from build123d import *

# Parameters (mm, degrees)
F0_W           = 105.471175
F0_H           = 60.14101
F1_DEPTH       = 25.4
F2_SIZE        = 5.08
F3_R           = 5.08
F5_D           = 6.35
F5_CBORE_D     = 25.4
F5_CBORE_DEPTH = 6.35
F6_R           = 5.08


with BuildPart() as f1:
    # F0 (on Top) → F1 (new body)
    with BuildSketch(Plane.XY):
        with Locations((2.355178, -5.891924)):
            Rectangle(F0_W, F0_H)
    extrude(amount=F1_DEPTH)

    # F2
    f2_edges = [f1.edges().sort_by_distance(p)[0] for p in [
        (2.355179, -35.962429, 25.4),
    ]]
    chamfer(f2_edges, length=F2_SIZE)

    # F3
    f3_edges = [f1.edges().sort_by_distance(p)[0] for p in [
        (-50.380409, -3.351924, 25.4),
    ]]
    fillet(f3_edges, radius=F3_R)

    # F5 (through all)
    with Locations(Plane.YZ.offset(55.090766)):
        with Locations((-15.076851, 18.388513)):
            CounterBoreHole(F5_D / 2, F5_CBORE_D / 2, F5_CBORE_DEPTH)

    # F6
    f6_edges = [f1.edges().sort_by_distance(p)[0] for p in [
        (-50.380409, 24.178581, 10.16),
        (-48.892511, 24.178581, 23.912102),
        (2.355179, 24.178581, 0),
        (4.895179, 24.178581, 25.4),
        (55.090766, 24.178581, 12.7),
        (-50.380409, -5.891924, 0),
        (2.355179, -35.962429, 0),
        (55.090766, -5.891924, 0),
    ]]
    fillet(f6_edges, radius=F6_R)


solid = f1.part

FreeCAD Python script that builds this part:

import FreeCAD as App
import Part
import Sketcher
from FreeCAD import Vector
Q = App.Units.Quantity


def edges_at(feature, points):
    """Names of the edges that pass closest to the given points."""
    edges = feature.Shape.Edges
    near = lambda p: min(range(len(edges)), key=lambda i: edges[i].distToShape(Part.Vertex(*p))[0])
    return sorted({f"Edge{near(p) + 1}" for p in points})


def add_polygon(sketch, points):
    """Adds a closed chain of lines whose ends are joined by coincident constraints."""
    first, n = sketch.GeometryCount, len(points)
    for a, b in zip(points, points[1:] + points[:1]):
        sketch.addGeometry(Part.LineSegment(App.Vector(*a, 0), App.Vector(*b, 0)), False)
    for i in range(n):
        sketch.addConstraint(Sketcher.Constraint("Coincident", first + i, 2, first + (i + 1) % n, 1))

doc = App.newDocument("Part")
body = doc.addObject("PartDesign::Body", "Body")

# Sketch on XY plane
sketch1 = doc.addObject("Sketcher::SketchObject", "Sketch")
body.addObject(sketch1)
sketch1.AttachmentSupport = (doc.XY_Plane, [""])
sketch1.MapMode = "FlatFace"
add_polygon(sketch1, [(-50.380409, 24.178581), (-50.380409, -35.962429), (55.090766, -35.962429), (55.090766, 24.178581)])  # lines 0-3
sketch1.addConstraint([
    Sketcher.Constraint("Vertical", 0),
    Sketcher.Constraint("Horizontal", 1),
    Sketcher.Constraint("Vertical", 2),
    Sketcher.Constraint("Horizontal", 3),
    Sketcher.Constraint("DistanceY", 0, 2, 0, 1, 60.14101),
    Sketcher.Constraint("DistanceX", 1, 1, 1, 2, 105.471175),
    Sketcher.Constraint("DistanceX", 0, 2, -1, 1, 50.380409),
    Sketcher.Constraint("DistanceY", 0, 2, -1, 1, 35.962429),
])
pad1 = doc.addObject("PartDesign::Pad", "Pad")
body.addObject(pad1)
pad1.Profile = sketch1
pad1.Length = Q("1 in")
doc.recompute()

chamfer = doc.addObject("PartDesign::Chamfer", "Chamfer")
body.addObject(chamfer)
chamfer.Base = (pad1, edges_at(pad1, [(2.355, -35.962, 25.4)]))
chamfer.Size = Q("0.2 in")
doc.recompute()

fillet = doc.addObject("PartDesign::Fillet", "Fillet")
body.addObject(fillet)
fillet.Base = (chamfer, edges_at(chamfer, [(-50.38, -3.352, 25.4)]))
fillet.Radius = Q("0.2 in")

# Sketch on YZ plane
sketch2 = doc.addObject("Sketcher::SketchObject", "Sketch001")
body.addObject(sketch2)
sketch2.AttachmentSupport = (doc.YZ_Plane, [""])
sketch2.MapMode = "FlatFace"
sketch2.AttachmentOffset = App.Placement(Vector(0, 0, 55.090766), App.Rotation())
sketch2.addGeometry(Part.Circle(Vector(-15.076851, 18.388513, 0), Vector(0, 0, 1), 3.175), False)
sketch2.addConstraint([
    Sketcher.Constraint("Diameter", 0, Q("0.25 in")),
    Sketcher.Constraint("DistanceX", 0, 3, -1, 1, 15.076851),
    Sketcher.Constraint("DistanceY", -1, 1, 0, 3, 18.388513),
])
doc.recompute()
hole = doc.addObject("PartDesign::Hole", "Hole")
body.addObject(hole)
hole.Profile = sketch2
hole.ThreadType = "None"
hole.Diameter = Q("0.25 in")
hole.DepthType = "ThroughAll"
hole.HoleCutType = "Counterbore"
hole.HoleCutDiameter = Q("1 in")
hole.HoleCutDepth = Q("0.25 in")
doc.recompute()

fillet2 = doc.addObject("PartDesign::Fillet", "Fillet001")
body.addObject(fillet2)
fillet2.Base = (hole, edges_at(hole, [
    (-50.38, 24.179, 10.16),
    (-48.893, 24.179, 23.912),
    (2.355, 24.179, 0),
    (4.895, 24.179, 25.4),
    (55.091, 24.179, 12.7),
    (-50.38, -5.892, 0),
    (2.355, -35.962, 0),
    (55.091, -5.892, 0),
]))
fillet2.Radius = Q("0.2 in")

doc.recompute()
